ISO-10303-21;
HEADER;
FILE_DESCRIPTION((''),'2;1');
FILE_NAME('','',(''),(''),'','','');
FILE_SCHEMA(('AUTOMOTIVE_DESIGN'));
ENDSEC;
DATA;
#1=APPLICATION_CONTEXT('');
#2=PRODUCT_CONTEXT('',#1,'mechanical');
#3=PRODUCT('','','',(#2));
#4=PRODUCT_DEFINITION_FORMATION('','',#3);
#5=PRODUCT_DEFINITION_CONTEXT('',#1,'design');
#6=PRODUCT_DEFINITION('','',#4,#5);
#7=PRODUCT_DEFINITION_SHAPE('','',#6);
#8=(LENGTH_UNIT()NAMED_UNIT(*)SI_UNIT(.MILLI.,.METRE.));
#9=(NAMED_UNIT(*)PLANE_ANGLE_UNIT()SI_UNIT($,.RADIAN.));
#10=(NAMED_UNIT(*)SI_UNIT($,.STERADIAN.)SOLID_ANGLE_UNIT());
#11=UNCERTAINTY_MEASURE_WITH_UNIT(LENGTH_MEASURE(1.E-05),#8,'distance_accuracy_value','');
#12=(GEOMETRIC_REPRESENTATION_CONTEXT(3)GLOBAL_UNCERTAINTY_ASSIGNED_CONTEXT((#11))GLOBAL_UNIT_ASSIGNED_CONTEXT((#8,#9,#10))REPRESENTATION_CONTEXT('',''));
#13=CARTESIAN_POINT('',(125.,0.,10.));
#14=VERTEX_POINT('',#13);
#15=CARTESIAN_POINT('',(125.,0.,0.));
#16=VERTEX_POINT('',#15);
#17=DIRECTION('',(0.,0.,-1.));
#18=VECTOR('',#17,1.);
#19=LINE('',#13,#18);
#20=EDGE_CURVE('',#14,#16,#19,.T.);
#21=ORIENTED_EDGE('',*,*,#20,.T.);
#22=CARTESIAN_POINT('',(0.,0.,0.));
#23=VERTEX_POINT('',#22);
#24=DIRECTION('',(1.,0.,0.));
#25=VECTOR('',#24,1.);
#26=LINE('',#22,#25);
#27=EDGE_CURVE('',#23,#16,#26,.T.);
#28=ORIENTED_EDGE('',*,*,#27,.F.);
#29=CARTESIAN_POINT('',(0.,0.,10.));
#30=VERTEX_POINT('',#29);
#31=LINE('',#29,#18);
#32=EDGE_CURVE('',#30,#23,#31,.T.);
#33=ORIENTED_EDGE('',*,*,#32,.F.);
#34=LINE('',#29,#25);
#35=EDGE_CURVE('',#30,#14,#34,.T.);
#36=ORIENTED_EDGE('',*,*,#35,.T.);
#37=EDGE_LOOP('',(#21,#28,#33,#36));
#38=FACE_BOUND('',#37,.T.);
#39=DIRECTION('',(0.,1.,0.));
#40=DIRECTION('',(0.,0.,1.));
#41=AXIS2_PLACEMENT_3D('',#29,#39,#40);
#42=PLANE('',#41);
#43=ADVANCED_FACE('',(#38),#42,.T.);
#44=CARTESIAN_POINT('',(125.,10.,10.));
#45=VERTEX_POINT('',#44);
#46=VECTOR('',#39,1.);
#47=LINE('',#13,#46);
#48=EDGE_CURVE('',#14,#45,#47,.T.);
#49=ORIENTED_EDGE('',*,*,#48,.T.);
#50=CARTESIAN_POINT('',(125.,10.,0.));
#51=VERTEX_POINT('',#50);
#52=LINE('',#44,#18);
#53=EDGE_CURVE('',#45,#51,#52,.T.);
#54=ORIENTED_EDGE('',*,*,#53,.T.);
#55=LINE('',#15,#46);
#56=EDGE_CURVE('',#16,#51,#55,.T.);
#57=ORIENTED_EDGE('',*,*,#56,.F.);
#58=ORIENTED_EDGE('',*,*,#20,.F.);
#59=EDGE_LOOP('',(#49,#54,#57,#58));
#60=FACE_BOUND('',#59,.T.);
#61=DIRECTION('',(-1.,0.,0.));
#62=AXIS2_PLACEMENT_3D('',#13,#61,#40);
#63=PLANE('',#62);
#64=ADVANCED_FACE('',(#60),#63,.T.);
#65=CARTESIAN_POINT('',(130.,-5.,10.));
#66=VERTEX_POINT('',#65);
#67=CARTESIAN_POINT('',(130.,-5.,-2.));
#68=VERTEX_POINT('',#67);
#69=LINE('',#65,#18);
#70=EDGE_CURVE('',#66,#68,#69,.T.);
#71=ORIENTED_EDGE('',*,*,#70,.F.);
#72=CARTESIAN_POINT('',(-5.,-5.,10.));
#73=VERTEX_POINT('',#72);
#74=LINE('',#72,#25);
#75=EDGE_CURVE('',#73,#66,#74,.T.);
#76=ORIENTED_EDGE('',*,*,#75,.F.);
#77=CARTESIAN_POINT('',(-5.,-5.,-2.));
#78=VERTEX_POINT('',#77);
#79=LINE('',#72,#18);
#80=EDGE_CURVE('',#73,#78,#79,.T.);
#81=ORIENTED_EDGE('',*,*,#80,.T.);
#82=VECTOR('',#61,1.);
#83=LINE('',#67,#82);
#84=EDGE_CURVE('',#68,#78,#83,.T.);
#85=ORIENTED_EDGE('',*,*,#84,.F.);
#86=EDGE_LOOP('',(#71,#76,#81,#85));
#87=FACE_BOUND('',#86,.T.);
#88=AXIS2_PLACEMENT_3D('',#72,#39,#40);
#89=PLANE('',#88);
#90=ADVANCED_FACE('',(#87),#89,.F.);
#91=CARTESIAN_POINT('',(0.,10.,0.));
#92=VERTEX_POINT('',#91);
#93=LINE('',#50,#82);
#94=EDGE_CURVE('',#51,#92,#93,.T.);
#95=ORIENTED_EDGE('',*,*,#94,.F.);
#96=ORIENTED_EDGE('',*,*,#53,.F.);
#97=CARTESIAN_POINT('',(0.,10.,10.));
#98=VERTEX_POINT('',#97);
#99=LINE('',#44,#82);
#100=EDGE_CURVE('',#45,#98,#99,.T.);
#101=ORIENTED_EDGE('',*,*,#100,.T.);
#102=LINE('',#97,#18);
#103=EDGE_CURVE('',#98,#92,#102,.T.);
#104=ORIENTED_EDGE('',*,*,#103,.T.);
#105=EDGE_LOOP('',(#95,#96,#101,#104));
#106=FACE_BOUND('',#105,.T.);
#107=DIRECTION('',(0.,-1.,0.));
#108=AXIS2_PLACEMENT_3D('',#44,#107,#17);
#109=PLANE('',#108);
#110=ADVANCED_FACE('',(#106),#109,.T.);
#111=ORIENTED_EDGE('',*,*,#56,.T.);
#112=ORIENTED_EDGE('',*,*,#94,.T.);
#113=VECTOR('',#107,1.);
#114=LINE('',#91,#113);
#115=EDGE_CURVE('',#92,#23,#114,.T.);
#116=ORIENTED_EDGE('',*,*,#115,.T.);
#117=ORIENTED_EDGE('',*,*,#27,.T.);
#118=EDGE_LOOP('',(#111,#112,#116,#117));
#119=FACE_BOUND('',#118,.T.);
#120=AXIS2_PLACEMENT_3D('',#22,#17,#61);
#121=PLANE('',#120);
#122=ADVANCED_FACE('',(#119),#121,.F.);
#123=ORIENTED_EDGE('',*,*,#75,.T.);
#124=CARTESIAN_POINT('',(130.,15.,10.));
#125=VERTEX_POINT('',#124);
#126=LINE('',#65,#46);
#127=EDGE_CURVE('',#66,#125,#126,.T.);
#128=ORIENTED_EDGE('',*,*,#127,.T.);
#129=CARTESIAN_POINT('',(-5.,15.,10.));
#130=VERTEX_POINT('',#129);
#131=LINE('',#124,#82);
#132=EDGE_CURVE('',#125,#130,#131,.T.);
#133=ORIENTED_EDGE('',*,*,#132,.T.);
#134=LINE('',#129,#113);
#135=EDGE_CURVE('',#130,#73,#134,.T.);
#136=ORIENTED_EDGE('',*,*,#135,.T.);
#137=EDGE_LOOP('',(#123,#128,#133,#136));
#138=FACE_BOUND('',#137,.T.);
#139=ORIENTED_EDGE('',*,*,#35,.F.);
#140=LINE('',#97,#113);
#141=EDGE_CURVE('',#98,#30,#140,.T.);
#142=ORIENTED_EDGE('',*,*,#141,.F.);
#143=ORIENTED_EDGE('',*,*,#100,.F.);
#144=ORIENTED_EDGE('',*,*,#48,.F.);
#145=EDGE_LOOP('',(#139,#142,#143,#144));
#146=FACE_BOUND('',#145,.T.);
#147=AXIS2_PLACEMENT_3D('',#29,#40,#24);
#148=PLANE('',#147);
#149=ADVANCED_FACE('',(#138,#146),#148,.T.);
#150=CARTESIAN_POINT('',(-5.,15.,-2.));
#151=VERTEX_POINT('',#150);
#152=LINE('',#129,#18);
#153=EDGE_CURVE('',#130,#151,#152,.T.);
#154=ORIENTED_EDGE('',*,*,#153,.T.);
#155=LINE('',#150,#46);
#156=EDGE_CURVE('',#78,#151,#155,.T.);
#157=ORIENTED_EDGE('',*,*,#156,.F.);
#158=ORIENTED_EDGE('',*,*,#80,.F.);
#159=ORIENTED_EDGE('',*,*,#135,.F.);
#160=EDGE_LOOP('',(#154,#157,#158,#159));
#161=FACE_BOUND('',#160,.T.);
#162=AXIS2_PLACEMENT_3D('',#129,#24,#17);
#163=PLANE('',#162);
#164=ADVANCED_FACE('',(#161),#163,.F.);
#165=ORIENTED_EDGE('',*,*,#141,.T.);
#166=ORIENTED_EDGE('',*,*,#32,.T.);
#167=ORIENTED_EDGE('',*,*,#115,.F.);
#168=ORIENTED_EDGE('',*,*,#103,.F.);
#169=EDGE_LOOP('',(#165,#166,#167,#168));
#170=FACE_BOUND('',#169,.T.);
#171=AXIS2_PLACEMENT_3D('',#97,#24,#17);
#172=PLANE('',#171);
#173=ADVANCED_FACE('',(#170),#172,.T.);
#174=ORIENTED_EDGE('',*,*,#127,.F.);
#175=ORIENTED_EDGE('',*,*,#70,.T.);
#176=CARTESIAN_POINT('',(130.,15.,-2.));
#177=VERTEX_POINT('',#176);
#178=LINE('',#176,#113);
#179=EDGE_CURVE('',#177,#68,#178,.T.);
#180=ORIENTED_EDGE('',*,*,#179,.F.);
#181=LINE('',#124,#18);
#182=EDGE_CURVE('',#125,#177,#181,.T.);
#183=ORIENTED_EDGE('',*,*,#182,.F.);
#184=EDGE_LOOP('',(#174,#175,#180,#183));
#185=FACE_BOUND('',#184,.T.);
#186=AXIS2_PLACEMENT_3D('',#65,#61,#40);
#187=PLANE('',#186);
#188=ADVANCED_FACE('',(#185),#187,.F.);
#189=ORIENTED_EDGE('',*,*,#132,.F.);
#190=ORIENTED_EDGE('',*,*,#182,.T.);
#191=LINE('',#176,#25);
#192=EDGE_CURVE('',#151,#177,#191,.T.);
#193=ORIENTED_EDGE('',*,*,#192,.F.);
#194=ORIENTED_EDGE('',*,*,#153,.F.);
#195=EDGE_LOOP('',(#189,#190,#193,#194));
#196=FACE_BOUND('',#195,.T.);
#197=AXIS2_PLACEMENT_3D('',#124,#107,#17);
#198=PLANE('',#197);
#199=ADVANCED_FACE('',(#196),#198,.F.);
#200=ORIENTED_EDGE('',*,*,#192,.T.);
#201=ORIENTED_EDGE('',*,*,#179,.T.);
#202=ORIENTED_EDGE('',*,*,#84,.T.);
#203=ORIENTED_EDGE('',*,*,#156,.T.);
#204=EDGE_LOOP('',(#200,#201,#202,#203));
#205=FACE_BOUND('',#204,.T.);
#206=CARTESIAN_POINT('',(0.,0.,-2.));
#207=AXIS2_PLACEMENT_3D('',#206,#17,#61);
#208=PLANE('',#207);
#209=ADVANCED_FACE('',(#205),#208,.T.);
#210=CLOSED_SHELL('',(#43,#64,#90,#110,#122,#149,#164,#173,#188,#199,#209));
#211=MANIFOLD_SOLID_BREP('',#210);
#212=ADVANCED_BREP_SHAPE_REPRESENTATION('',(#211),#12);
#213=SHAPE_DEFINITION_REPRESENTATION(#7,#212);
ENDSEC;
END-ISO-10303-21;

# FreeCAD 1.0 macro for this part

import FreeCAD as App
import Part
import Sketcher
from FreeCAD import Vector


def add_polygon(sketch, points):
    """Adds a closed chain of lines whose ends are joined by coincident constraints."""
    first, n = sketch.GeometryCount, len(points)
    for a, b in zip(points, points[1:] + points[:1]):
        sketch.addGeometry(Part.LineSegment(App.Vector(*a, 0), App.Vector(*b, 0)), False)
    for i in range(n):
        sketch.addConstraint(Sketcher.Constraint("Coincident", first + i, 2, first + (i + 1) % n, 1))

doc = App.newDocument("Part")
body = doc.addObject("PartDesign::Body", "Body")

sketch1 = body.newObject("Sketcher::SketchObject", "Sketch")
sketch1.AttachmentSupport = (doc.getObject("XY_Plane"), [""])
sketch1.MapMode = "FlatFace"
add_polygon(sketch1, [(-5, 15), (-5, -5), (130, -5), (130, 15)])
add_polygon(sketch1, [(125, 0), (0, 0), (0, 10), (125, 10)])
sketch1.addConstraint(Sketcher.Constraint("Vertical", 0))
sketch1.addConstraint(Sketcher.Constraint("Horizontal", 1))
sketch1.addConstraint(Sketcher.Constraint("Vertical", 2))
sketch1.addConstraint(Sketcher.Constraint("Horizontal", 3))
sketch1.addConstraint(Sketcher.Constraint("Horizontal", 4))
sketch1.addConstraint(Sketcher.Constraint("Vertical", 5))
sketch1.addConstraint(Sketcher.Constraint("Horizontal", 6))
sketch1.addConstraint(Sketcher.Constraint("Vertical", 7))
sketch1.addConstraint(Sketcher.Constraint("Coincident", 4, 2, -1, 1))
sketch1.addConstraint(Sketcher.Constraint("DistanceX", 1, 1, 1, 2, 135.0))
sketch1.addConstraint(Sketcher.Constraint("DistanceX", 4, 2, 4, 1, 125.0))
sketch1.addConstraint(Sketcher.Constraint("DistanceY", 0, 2, 0, 1, 20.0))
sketch1.addConstraint(Sketcher.Constraint("DistanceY", 5, 1, 5, 2, 10.0))
sketch1.addConstraint(Sketcher.Constraint("DistanceX", 0, 2, -1, 1, 5.0))
sketch1.addConstraint(Sketcher.Constraint("DistanceY", 0, 2, -1, 1, 5.0))
pad1 = body.newObject("PartDesign::Pad", "Pad")
pad1.Profile = sketch1
pad1.Length = 10

sketch2 = body.newObject("Sketcher::SketchObject", "Sketch001")
sketch2.AttachmentSupport = (doc.getObject("XY_Plane"), [""])
sketch2.MapMode = "FlatFace"
add_polygon(sketch2, [(130, 15), (130, -5), (-5, -5), (-5, 15)])
sketch2.addConstraint(Sketcher.Constraint("Vertical", 0))
sketch2.addConstraint(Sketcher.Constraint("Horizontal", 1))
sketch2.addConstraint(Sketcher.Constraint("Vertical", 2))
sketch2.addConstraint(Sketcher.Constraint("Horizontal", 3))
sketch2.addConstraint(Sketcher.Constraint("DistanceX", 1, 2, 1, 1, 135.0))
sketch2.addConstraint(Sketcher.Constraint("DistanceY", 0, 2, 0, 1, 20.0))
sketch2.addConstraint(Sketcher.Constraint("DistanceX", -1, 1, 0, 2, 130.0))
sketch2.addConstraint(Sketcher.Constraint("DistanceY", 0, 2, -1, 1, 5.0))
pad2 = body.newObject("PartDesign::Pad", "Pad001")
pad2.Profile = sketch2
pad2.Length = 2
pad2.Reversed = True

doc.recompute()
